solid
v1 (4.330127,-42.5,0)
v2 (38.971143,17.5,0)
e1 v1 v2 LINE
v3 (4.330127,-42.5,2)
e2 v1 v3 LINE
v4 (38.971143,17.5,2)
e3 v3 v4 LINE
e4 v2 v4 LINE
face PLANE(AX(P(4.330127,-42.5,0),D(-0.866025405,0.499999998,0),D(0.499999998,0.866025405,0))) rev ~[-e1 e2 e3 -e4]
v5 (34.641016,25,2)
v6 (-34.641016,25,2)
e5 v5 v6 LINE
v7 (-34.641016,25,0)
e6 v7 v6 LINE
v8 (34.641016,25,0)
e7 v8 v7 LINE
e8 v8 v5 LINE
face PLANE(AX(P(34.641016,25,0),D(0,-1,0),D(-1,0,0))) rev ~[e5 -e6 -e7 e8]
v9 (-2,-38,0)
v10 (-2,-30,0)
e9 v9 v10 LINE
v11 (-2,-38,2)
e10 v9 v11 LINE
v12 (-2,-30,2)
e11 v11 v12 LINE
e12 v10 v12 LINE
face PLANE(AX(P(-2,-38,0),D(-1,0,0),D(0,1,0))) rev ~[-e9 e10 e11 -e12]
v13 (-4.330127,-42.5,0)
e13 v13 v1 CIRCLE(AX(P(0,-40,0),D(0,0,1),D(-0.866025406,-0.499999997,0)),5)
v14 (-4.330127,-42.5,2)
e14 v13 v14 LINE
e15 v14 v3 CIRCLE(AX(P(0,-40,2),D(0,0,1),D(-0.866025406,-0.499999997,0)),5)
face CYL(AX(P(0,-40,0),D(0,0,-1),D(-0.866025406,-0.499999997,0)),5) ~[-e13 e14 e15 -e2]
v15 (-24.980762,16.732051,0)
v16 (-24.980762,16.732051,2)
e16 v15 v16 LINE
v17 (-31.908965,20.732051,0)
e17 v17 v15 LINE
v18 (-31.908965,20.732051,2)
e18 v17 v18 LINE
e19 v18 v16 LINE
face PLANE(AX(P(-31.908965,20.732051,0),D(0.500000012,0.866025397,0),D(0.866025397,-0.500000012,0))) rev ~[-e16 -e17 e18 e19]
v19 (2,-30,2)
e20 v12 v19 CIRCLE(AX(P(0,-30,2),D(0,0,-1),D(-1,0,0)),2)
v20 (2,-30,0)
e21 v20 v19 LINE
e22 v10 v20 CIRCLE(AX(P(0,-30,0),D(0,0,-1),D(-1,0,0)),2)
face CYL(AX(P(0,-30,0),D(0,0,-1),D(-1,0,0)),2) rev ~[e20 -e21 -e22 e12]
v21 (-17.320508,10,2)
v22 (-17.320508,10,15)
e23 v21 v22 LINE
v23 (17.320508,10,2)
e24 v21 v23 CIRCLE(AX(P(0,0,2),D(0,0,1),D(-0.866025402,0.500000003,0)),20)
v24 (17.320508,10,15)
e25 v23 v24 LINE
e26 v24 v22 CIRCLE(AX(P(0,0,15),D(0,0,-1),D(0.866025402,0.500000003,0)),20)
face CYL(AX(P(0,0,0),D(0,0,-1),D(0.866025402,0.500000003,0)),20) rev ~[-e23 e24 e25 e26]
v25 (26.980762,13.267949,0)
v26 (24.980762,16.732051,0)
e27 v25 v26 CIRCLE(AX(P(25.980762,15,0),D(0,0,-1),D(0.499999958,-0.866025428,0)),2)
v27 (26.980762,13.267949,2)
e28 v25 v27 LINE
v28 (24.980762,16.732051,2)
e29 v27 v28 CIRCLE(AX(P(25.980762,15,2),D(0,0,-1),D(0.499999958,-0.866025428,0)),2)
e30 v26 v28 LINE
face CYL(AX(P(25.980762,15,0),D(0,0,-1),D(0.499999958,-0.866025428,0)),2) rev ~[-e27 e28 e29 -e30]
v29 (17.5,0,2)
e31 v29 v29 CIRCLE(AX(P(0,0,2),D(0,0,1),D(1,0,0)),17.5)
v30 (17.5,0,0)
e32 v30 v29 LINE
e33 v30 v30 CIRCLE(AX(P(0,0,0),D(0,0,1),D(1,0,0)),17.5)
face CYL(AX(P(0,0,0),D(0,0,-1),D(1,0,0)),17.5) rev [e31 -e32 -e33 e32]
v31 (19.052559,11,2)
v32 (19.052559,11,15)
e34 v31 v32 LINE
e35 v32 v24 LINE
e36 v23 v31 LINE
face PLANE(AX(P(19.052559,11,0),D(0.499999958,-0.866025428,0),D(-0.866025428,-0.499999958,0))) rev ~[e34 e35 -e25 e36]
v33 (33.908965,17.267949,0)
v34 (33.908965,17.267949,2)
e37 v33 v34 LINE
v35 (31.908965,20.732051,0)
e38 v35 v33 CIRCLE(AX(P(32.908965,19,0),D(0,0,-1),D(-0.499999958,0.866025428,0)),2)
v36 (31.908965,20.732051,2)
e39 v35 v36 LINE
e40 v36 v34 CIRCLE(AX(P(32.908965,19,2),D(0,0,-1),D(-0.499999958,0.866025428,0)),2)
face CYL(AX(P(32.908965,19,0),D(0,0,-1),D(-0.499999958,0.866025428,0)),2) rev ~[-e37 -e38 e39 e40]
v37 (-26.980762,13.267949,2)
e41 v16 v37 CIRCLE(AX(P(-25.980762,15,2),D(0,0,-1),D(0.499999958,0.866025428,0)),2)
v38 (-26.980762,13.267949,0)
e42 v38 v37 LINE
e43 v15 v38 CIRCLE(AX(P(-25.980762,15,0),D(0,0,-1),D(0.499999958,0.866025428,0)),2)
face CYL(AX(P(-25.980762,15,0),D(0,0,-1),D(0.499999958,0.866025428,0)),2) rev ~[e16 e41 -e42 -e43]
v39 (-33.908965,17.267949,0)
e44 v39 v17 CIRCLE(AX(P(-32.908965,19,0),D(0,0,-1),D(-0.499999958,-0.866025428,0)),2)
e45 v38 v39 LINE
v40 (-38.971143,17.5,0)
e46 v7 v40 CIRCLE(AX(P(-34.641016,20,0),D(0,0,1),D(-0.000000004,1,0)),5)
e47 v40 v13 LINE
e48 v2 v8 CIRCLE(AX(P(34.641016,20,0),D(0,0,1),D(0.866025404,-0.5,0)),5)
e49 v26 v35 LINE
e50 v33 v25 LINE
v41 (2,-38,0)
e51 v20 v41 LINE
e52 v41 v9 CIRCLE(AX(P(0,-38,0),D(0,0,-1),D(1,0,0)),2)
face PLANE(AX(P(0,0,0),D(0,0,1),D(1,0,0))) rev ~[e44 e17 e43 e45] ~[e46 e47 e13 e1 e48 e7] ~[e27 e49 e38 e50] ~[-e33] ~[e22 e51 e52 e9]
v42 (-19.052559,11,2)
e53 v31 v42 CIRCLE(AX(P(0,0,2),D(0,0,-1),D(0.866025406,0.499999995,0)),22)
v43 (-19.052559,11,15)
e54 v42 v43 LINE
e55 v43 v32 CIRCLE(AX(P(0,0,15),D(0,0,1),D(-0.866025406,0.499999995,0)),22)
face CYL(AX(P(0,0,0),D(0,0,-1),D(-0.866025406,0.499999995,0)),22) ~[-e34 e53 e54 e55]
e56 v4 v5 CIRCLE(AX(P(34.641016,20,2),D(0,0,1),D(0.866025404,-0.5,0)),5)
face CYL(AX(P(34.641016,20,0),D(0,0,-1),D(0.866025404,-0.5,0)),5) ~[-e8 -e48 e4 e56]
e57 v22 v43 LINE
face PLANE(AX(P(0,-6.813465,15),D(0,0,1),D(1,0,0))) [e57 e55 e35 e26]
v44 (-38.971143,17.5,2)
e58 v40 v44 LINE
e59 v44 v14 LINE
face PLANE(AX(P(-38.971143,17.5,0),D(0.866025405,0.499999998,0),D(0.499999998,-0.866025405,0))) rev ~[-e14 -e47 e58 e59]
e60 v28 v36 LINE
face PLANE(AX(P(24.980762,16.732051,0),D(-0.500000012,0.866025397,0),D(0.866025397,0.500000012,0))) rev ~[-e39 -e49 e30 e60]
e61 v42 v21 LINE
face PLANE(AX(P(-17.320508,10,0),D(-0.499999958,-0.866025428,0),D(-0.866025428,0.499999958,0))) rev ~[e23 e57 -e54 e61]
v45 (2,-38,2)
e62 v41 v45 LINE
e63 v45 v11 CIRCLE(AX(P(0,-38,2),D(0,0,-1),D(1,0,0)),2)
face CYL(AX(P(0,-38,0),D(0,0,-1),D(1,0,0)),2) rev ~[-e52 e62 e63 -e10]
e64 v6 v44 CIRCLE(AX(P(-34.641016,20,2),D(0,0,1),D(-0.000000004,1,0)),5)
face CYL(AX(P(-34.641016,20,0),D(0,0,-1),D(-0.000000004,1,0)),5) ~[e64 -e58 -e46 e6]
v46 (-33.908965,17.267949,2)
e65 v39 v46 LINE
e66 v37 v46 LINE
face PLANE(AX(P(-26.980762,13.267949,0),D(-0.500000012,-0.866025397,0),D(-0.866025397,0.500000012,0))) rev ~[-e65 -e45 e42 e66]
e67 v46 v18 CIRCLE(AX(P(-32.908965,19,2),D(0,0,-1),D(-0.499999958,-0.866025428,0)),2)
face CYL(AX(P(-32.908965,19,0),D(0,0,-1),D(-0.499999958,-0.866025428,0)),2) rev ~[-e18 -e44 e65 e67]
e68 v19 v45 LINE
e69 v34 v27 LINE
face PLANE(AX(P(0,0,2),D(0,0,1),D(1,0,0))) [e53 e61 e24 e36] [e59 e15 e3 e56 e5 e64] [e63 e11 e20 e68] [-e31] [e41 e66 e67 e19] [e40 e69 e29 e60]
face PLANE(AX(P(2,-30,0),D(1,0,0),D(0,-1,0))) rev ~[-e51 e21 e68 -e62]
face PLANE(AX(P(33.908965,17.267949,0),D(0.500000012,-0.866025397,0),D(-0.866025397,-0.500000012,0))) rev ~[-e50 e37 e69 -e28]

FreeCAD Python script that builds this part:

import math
import FreeCAD as App
import Part
import Sketcher

V = App.Vector
Q = App.Units.Quantity

doc = App.newDocument("Part")
body = doc.addObject("PartDesign::Body", "Body")

# Sketch on XY plane
sketch1 = doc.addObject("Sketcher::SketchObject", "Sketch")
body.addObject(sketch1)
sketch1.AttachmentSupport = (doc.XY_Plane, [""])
sketch1.MapMode = "FlatFace"
sketch1.addGeometry([
    Part.LineSegment(V(34.641016, 25, 0), V(-34.641016, 25, 0)),  # 0
    Part.ArcOfCircle(Part.Circle(V(-34.641016, 20, 0), V(0, 0, 1), 5), math.radians(90), math.radians(210)),  # 1
    Part.LineSegment(V(-38.971143, 17.5, 0), V(-4.330127, -42.5, 0)),  # 2
    Part.ArcOfCircle(Part.Circle(V(0, -40, 0), V(0, 0, 1), 5), math.radians(-150), math.radians(-30)),  # 3
    Part.LineSegment(V(4.330127, -42.5, 0), V(38.971143, 17.5, 0)),  # 4
    Part.ArcOfCircle(Part.Circle(V(34.641016, 20, 0), V(0, 0, 1), 5), math.radians(-30), math.radians(90)),  # 5
    Part.LineSegment(V(2, -30, 0), V(2, -38, 0)),  # 6
    Part.ArcOfCircle(Part.Circle(V(0, -38, 0), V(0, 0, 1), 2), math.radians(180), math.radians(360)),  # 7
    Part.LineSegment(V(-2, -38, 0), V(-2, -30, 0)),  # 8
    Part.ArcOfCircle(Part.Circle(V(0, -30, 0), V(0, 0, 1), 2), math.radians(0), math.radians(180)),  # 9
    Part.ArcOfCircle(Part.Circle(V(0, 0, 0), V(0, 0, 1), 22), math.radians(150), math.radians(390)),  # 10
    Part.LineSegment(V(-19.052559, 11, 0), V(-17.320508, 10, 0)),  # 11
    Part.ArcOfCircle(Part.Circle(V(0, 0, 0), V(0, 0, 1), 20), math.radians(150), math.radians(390)),  # 12
    Part.LineSegment(V(17.320508, 10, 0), V(19.052559, 11, 0)),  # 13
    Part.Circle(V(0, 0, 0), V(0, 0, 1), 17.5),  # 14
    Part.LineSegment(V(-26.980762, 13.267949, 0), V(-33.908965, 17.267949, 0)),  # 15
    Part.ArcOfCircle(Part.Circle(V(-32.908965, 19, 0), V(0, 0, 1), 2), math.radians(60.000003), math.radians(240.000003)),  # 16
    Part.LineSegment(V(-31.908965, 20.732051, 0), V(-24.980762, 16.732051, 0)),  # 17
    Part.ArcOfCircle(Part.Circle(V(-25.980762, 15, 0), V(0, 0, 1), 2), math.radians(-119.999997), math.radians(60.000003)),  # 18
    Part.LineSegment(V(24.980762, 16.732051, 0), V(31.908965, 20.732051, 0)),  # 19
    Part.ArcOfCircle(Part.Circle(V(32.908965, 19, 0), V(0, 0, 1), 2), math.radians(-60.000003), math.radians(119.999997)),  # 20
    Part.LineSegment(V(33.908965, 17.267949, 0), V(26.980762, 13.267949, 0)),  # 21
    Part.ArcOfCircle(Part.Circle(V(25.980762, 15, 0), V(0, 0, 1), 2), math.radians(119.999997), math.radians(299.999997)),  # 22
], False)
sketch1.addConstraint([
    Sketcher.Constraint("Tangent", 0, 2, 1, 1),
    Sketcher.Constraint("Tangent", 1, 2, 2, 1),
    Sketcher.Constraint("Tangent", 2, 2, 3, 1),
    Sketcher.Constraint("Tangent", 3, 2, 4, 1),
    Sketcher.Constraint("Tangent", 4, 2, 5, 1),
    Sketcher.Constraint("Tangent", 5, 2, 0, 1),
    Sketcher.Constraint("Tangent", 6, 2, 7, 2),
    Sketcher.Constraint("Tangent", 7, 1, 8, 1),
    Sketcher.Constraint("Tangent", 8, 2, 9, 2),
    Sketcher.Constraint("Tangent", 9, 1, 6, 1),
    Sketcher.Constraint("Coincident", 10, 1, 11, 1),
    Sketcher.Constraint("Coincident", 11, 2, 12, 1),
    Sketcher.Constraint("Coincident", 12, 2, 13, 1),
    Sketcher.Constraint("Coincident", 13, 2, 10, 2),
    Sketcher.Constraint("Tangent", 15, 2, 16, 2),
    Sketcher.Constraint("Tangent", 16, 1, 17, 1),
    Sketcher.Constraint("Tangent", 17, 2, 18, 2),
    Sketcher.Constraint("Tangent", 18, 1, 15, 1),
    Sketcher.Constraint("Tangent", 19, 2, 20, 2),
    Sketcher.Constraint("Tangent", 20, 1, 21, 1),
    Sketcher.Constraint("Tangent", 21, 2, 22, 2),
    Sketcher.Constraint("Tangent", 22, 1, 19, 1),
    Sketcher.Constraint("Horizontal", 0),
    Sketcher.Constraint("Vertical", 6),
    Sketcher.Constraint("Vertical", 8),
    Sketcher.Constraint("Coincident", 10, 3, -1, 1),
    Sketcher.Constraint("Coincident", 12, 3, -1, 1),
    Sketcher.Constraint("Coincident", 14, 3, -1, 1),
    Sketcher.Constraint("Equal", 1, 3),
    Sketcher.Constraint("Equal", 3, 5),
    Sketcher.Constraint("Equal", 9, 16),
    Sketcher.Constraint("Equal", 16, 18),
    Sketcher.Constraint("Equal", 18, 20),
    Sketcher.Constraint("Equal", 20, 22),
    Sketcher.Constraint("Symmetric", 16, 3, 20, 3, -2),
    Sketcher.Constraint("Symmetric", 18, 3, 22, 3, -2),
    Sketcher.Constraint("Symmetric", 2, 2, 3, 2, -2),
    Sketcher.Constraint("PointOnObject", 7, 3, -2),
    Sketcher.Constraint("Perpendicular", 4, 11),
    Sketcher.Constraint("Perpendicular", 2, 13),
    Sketcher.Constraint("Parallel", 11, 15),
    Sketcher.Constraint("Horizontal", 11, 2, 12, 2),
    Sketcher.Constraint("Diameter", 14, Q("35 mm")),
    Sketcher.Constraint("Radius", 1, Q("5 mm")),
    Sketcher.Constraint("Radius", 7, Q("2 mm")),
    Sketcher.Constraint("Radius", 10, Q("22 mm")),
    Sketcher.Constraint("Radius", 12, Q("20 mm")),
    Sketcher.Constraint("DistanceY", 6, 2, 6, 1, Q("8 mm")),
    Sketcher.Constraint("Angle", 2, Q("-60 deg")),
    Sketcher.Constraint("Distance", 15, Q("8 mm")),
    Sketcher.Constraint("DistanceY", -1, 1, 1, 3, Q("20 mm")),
    Sketcher.Constraint("DistanceY", 3, 3, -1, 1, Q("40 mm")),
    Sketcher.Constraint("DistanceY", 7, 3, -1, 1, Q("38 mm")),
    Sketcher.Constraint("DistanceY", -1, 1, 16, 3, Q("19 mm")),
    Sketcher.Constraint("DistanceY", -1, 1, 10, 1, Q("11 mm")),
    Sketcher.Constraint("DistanceX", 18, 3, -1, 1, Q("25.980762 mm")),
])
pad1 = doc.addObject("PartDesign::Pad", "Pad")
body.addObject(pad1)
pad1.Profile = sketch1
pad1.Length = 2

# Sketch on XY plane
sketch2 = doc.addObject("Sketcher::SketchObject", "Sketch001")
body.addObject(sketch2)
sketch2.AttachmentSupport = (doc.XY_Plane, [""])
sketch2.MapMode = "FlatFace"
sketch2.addGeometry([
    Part.ArcOfCircle(Part.Circle(V(0, 0, 0), V(0, 0, 1), 20), math.radians(150), math.radians(390)),
    Part.LineSegment(V(-17.320508, 10, 0), V(-19.052559, 11, 0)),
    Part.ArcOfCircle(Part.Circle(V(0, 0, 0), V(0, 0, 1), 22), math.radians(150), math.radians(390)),
    Part.LineSegment(V(19.052559, 11, 0), V(17.320508, 10, 0)),
], False)
sketch2.addConstraint([
    Sketcher.Constraint("Coincident", 0, 1, 1, 1),
    Sketcher.Constraint("Coincident", 1, 2, 2, 1),
    Sketcher.Constraint("Coincident", 2, 2, 3, 1),
    Sketcher.Constraint("Coincident", 3, 2, 0, 2),
    Sketcher.Constraint("Coincident", 0, 3, -1, 1),
    Sketcher.Constraint("Coincident", 2, 3, -1, 1),
    Sketcher.Constraint("Horizontal", 1, 2, 2, 2),
    Sketcher.Constraint("Horizontal", 0, 1, 3, 2),
    Sketcher.Constraint("Radius", 0, Q("20 mm")),
    Sketcher.Constraint("Radius", 2, Q("22 mm")),
    Sketcher.Constraint("Angle", 1, Q("150.000003 deg")),
    Sketcher.Constraint("DistanceY", -1, 1, 0, 1, Q("10 mm")),
])
pad2 = doc.addObject("PartDesign::Pad", "Pad001")
body.addObject(pad2)
pad2.Profile = sketch2
pad2.Length = 15

doc.recompute()
